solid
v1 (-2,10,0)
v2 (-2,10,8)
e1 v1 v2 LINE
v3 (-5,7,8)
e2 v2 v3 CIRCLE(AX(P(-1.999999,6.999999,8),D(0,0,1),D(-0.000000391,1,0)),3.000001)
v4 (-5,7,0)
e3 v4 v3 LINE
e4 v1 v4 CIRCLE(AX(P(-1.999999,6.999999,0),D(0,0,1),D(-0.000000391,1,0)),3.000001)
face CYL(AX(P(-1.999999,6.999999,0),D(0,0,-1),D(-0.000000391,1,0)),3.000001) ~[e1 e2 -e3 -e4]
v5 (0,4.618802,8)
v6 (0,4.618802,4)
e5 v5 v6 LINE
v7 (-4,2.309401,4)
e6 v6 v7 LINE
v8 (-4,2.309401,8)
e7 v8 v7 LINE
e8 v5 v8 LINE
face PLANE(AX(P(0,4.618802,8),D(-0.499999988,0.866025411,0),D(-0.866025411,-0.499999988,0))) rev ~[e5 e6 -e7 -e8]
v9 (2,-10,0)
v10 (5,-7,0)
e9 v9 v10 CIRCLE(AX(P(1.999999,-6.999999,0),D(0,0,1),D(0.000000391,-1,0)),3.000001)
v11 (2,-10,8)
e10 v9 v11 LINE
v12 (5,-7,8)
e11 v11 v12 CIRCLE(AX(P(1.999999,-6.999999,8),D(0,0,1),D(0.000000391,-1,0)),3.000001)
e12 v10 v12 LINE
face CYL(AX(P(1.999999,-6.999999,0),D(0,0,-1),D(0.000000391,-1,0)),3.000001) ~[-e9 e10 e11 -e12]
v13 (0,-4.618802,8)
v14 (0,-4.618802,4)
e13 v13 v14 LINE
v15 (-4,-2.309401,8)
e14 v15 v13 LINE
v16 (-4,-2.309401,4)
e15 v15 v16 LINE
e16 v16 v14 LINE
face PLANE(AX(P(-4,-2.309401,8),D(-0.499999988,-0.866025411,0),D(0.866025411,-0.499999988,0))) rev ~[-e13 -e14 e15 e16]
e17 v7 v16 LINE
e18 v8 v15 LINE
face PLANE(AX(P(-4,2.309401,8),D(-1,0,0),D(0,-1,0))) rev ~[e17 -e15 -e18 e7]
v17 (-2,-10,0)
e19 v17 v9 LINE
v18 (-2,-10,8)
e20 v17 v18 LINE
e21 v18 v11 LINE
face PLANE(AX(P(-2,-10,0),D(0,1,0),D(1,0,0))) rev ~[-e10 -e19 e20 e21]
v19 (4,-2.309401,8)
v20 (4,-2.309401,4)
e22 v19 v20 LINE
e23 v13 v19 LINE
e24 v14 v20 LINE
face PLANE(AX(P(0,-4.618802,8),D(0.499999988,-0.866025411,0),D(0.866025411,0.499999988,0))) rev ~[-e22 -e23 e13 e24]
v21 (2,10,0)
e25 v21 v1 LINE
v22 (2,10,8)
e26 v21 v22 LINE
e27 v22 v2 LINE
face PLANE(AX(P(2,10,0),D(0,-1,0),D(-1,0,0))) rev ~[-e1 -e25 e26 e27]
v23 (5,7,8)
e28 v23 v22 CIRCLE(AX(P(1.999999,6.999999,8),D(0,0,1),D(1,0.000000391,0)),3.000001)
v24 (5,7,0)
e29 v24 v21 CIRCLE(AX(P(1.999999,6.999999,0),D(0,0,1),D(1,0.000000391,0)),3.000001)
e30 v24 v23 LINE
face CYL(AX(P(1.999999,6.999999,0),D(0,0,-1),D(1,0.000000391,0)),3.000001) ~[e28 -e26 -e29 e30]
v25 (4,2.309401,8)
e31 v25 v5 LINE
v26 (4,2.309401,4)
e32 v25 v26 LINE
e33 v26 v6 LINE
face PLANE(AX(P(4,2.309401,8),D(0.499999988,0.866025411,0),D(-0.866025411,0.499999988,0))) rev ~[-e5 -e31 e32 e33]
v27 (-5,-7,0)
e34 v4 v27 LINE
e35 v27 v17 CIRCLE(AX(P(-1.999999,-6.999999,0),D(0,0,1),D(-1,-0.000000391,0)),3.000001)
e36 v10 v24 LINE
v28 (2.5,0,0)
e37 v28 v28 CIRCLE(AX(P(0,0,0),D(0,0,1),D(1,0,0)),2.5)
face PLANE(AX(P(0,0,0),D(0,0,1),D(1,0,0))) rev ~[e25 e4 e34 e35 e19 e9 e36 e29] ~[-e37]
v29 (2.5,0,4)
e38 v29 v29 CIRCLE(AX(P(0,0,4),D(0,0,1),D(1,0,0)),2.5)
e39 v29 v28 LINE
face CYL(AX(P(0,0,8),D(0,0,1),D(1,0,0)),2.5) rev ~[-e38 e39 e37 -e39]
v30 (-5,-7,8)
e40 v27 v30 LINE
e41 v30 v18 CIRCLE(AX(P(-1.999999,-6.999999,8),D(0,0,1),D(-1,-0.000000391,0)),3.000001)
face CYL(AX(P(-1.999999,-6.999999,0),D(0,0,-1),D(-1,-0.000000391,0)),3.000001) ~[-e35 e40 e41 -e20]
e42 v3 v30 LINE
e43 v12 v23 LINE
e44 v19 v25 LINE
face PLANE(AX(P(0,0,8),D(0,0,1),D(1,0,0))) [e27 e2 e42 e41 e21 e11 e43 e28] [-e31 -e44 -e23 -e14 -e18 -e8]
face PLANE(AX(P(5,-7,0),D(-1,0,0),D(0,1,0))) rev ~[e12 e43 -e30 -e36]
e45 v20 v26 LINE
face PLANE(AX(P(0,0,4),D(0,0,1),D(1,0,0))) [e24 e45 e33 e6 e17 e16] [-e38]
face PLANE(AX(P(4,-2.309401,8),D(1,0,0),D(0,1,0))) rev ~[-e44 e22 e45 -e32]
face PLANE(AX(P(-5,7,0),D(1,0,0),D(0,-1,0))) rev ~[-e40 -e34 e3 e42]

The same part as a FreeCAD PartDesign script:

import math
import FreeCAD as App
import Part
import Sketcher

V = App.Vector
Q = App.Units.Quantity


def add_polygon(sketch, points):
    """Adds a closed chain of lines whose ends are joined by coincident constraints."""
    first, n = sketch.GeometryCount, len(points)
    for a, b in zip(points, points[1:] + points[:1]):
        sketch.addGeometry(Part.LineSegment(App.Vector(*a, 0), App.Vector(*b, 0)), False)
    for i in range(n):
        sketch.addConstraint(Sketcher.Constraint("Coincident", first + i, 2, first + (i + 1) % n, 1))

doc = App.newDocument("Part")
body = doc.addObject("PartDesign::Body", "Body")

# Sketch on XY plane
sketch1 = doc.addObject("Sketcher::SketchObject", "Sketch")
body.addObject(sketch1)
sketch1.AttachmentSupport = (doc.XY_Plane, [""])
sketch1.MapMode = "FlatFace"
sketch1.addGeometry([
    Part.LineSegment(V(-2, -10, 0), V(2, -10, 0)),  # 0
    Part.ArcOfCircle(Part.Circle(V(2, -7, 0), V(0, 0, 1), 3), math.radians(-90), math.radians(0)),  # 1
    Part.LineSegment(V(5, -7, 0), V(5, 7, 0)),  # 2
    Part.ArcOfCircle(Part.Circle(V(2, 7, 0), V(0, 0, 1), 3), math.radians(0), math.radians(90)),  # 3
    Part.LineSegment(V(2, 10, 0), V(-2, 10, 0)),  # 4
    Part.ArcOfCircle(Part.Circle(V(-2, 7, 0), V(0, 0, 1), 3), math.radians(90), math.radians(180)),  # 5
    Part.LineSegment(V(-5, 7, 0), V(-5, -7, 0)),  # 6
    Part.ArcOfCircle(Part.Circle(V(-2, -7, 0), V(0, 0, 1), 3), math.radians(-180), math.radians(-90)),  # 7
], False)
sketch1.addConstraint([
    Sketcher.Constraint("Tangent", 0, 2, 1, 1),
    Sketcher.Constraint("Tangent", 1, 2, 2, 1),
    Sketcher.Constraint("Tangent", 2, 2, 3, 1),
    Sketcher.Constraint("Tangent", 3, 2, 4, 1),
    Sketcher.Constraint("Tangent", 4, 2, 5, 1),
    Sketcher.Constraint("Tangent", 5, 2, 6, 1),
    Sketcher.Constraint("Tangent", 6, 2, 7, 1),
    Sketcher.Constraint("Tangent", 7, 2, 0, 1),
    Sketcher.Constraint("Horizontal", 0),
    Sketcher.Constraint("Vertical", 2),
    Sketcher.Constraint("Horizontal", 4),
    Sketcher.Constraint("Vertical", 6),
    Sketcher.Constraint("Equal", 1, 3),
    Sketcher.Constraint("Equal", 3, 5),
    Sketcher.Constraint("Equal", 5, 7),
    Sketcher.Constraint("Symmetric", 1, 3, 5, 3, -1, 1),
    Sketcher.Constraint("Radius", 1, Q("3.000001 mm")),
    Sketcher.Constraint("DistanceX", 0, 1, 0, 2, Q("4 mm")),
    Sketcher.Constraint("DistanceY", 2, 1, 2, 2, Q("14 mm")),
])
pad1 = doc.addObject("PartDesign::Pad", "Pad")
body.addObject(pad1)
pad1.Profile = sketch1
pad1.Length = 8

# Sketch on XY plane
sketch2 = doc.addObject("Sketcher::SketchObject", "Sketch001")
body.addObject(sketch2)
sketch2.AttachmentSupport = (doc.XY_Plane, [""])
sketch2.MapMode = "FlatFace"
sketch2.AttachmentOffset = App.Placement(V(0, 0, 8), App.Rotation())
sketch2.addGeometry(Part.Circle(V(0, 0, 0), V(0, 0, 1), 2.5), False)
sketch2.addConstraint([
    Sketcher.Constraint("Coincident", 0, 3, -1, 1),
    Sketcher.Constraint("Diameter", 0, Q("5 mm")),
])
pocket1 = doc.addObject("PartDesign::Pocket", "Pocket")
body.addObject(pocket1)
pocket1.Profile = sketch2
pocket1.Length = 25

# Sketch on XY plane
sketch3 = doc.addObject("Sketcher::SketchObject", "Sketch002")
body.addObject(sketch3)
sketch3.AttachmentSupport = (doc.XY_Plane, [""])
sketch3.MapMode = "FlatFace"
sketch3.AttachmentOffset = App.Placement(V(0, 0, 8), App.Rotation())
add_polygon(sketch3, [(0, -4.6), (4, -2.3), (4, 2.3), (0, 4.6), (-4, 2.3), (-4, -2.3)])  # lines 0-5
sketch3.addConstraint([
    Sketcher.Constraint("Vertical", 1),
    Sketcher.Constraint("Vertical", 4),
    Sketcher.Constraint("Symmetric", 0, 2, 3, 2, -1, 1),
    Sketcher.Constraint("Symmetric", 2, 2, 5, 2, -1, 1),
    Sketcher.Constraint("PointOnObject", 2, 2, -2),
    Sketcher.Constraint("Parallel", 2, 5),
    Sketcher.Constraint("Horizontal", 1, 2, 3, 2),
    Sketcher.Constraint("Angle", 0, Q("29.999999 deg")),
    Sketcher.Constraint("DistanceX", -1, 1, 0, 2, Q("4 mm")),
    Sketcher.Constraint("DistanceY", 1, 1, 1, 2, Q("4.618802 mm")),
])
pocket2 = doc.addObject("PartDesign::Pocket", "Pocket001")
body.addObject(pocket2)
pocket2.Profile = sketch3
pocket2.Length = 4

doc.recompute()
